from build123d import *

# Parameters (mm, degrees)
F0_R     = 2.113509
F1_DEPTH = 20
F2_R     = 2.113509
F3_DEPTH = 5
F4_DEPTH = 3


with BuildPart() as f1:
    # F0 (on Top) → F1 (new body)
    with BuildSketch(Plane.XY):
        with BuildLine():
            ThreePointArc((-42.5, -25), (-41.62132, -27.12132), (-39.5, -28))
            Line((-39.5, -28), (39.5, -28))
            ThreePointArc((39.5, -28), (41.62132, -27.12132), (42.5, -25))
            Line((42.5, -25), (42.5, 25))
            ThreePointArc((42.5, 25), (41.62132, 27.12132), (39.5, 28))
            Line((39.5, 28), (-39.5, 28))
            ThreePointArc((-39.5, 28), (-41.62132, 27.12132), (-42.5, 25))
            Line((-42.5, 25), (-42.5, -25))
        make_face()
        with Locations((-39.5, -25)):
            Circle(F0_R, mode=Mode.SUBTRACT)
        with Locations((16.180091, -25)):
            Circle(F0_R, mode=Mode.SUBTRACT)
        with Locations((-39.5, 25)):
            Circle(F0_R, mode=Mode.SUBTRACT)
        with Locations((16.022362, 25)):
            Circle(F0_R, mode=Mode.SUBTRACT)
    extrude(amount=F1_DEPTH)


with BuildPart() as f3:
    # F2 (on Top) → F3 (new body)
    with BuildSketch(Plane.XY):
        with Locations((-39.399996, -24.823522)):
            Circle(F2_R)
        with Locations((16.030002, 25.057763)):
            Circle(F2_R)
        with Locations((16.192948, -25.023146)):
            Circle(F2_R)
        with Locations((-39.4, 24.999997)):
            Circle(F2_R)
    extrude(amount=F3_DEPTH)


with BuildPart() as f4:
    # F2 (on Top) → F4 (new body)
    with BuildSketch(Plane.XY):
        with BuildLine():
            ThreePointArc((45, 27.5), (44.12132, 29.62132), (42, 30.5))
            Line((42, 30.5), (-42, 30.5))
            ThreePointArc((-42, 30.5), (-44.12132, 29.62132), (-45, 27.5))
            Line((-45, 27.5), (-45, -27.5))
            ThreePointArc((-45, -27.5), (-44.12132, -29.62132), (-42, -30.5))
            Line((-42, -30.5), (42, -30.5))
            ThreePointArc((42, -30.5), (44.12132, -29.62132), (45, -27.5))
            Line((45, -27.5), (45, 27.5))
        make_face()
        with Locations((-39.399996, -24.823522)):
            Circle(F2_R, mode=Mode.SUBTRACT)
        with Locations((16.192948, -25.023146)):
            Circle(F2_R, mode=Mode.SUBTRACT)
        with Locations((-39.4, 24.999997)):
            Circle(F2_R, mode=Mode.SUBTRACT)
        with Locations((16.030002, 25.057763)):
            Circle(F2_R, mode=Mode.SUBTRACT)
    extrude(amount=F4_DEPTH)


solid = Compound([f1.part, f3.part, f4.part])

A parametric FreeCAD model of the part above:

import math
import FreeCAD as App
import Part
import Sketcher

V = App.Vector

doc = App.newDocument("Part")
body = doc.addObject("PartDesign::Body", "Body")

# Sketch on XY plane
sketch1 = body.newObject("Sketcher::SketchObject", "Sketch")
sketch1.AttachmentSupport = (doc.getObject("XY_Plane"), [""])
sketch1.MapMode = "FlatFace"
sketch1.addGeometry([
    Part.ArcOfCircle(Part.Circle(V(-39.5, -25, 0), V(0, 0, 1), 3), math.radians(-180), math.radians(-90)),  # 0
    Part.LineSegment(V(-39.5, -28, 0), V(39.5, -28, 0)),  # 1
    Part.ArcOfCircle(Part.Circle(V(39.5, -25, 0), V(0, 0, 1), 3), math.radians(-90), math.radians(0)),  # 2
    Part.LineSegment(V(42.5, -25, 0), V(42.5, 25, 0)),  # 3
    Part.ArcOfCircle(Part.Circle(V(39.5, 25, 0), V(0, 0, 1), 3), math.radians(0), math.radians(90)),  # 4
    Part.LineSegment(V(39.5, 28, 0), V(-39.5, 28, 0)),  # 5
    Part.ArcOfCircle(Part.Circle(V(-39.5, 25, 0), V(0, 0, 1), 3), math.radians(90), math.radians(180)),  # 6
    Part.LineSegment(V(-42.5, 25, 0), V(-42.5, -25, 0)),  # 7
    Part.Circle(V(-39.5, -25, 0), V(0, 0, 1), 2.1),  # 8
    Part.Circle(V(16.2, -25, 0), V(0, 0, 1), 2.1),  # 9
    Part.Circle(V(-39.5, 25, 0), V(0, 0, 1), 2.1),  # 10
    Part.Circle(V(16, 25, 0), V(0, 0, 1), 2.1),  # 11
], False)
sketch1.addConstraint([
    Sketcher.Constraint("Tangent", 0, 2, 1, 1),
    Sketcher.Constraint("Tangent", 1, 2, 2, 1),
    Sketcher.Constraint("Tangent", 2, 2, 3, 1),
    Sketcher.Constraint("Tangent", 3, 2, 4, 1),
    Sketcher.Constraint("Tangent", 4, 2, 5, 1),
    Sketcher.Constraint("Tangent", 5, 2, 6, 1),
    Sketcher.Constraint("Tangent", 6, 2, 7, 1),
    Sketcher.Constraint("Tangent", 7, 2, 0, 1),
    Sketcher.Constraint("Horizontal", 1),
    Sketcher.Constraint("Vertical", 3),
    Sketcher.Constraint("Horizontal", 5),
    Sketcher.Constraint("Vertical", 7),
    Sketcher.Constraint("Coincident", 8, 3, 0, 3),
    Sketcher.Constraint("Coincident", 10, 3, 6, 3),
    Sketcher.Constraint("Equal", 0, 2),
    Sketcher.Constraint("Equal", 2, 4),
    Sketcher.Constraint("Equal", 4, 6),
    Sketcher.Constraint("Equal", 8, 9),
    Sketcher.Constraint("Equal", 9, 10),
    Sketcher.Constraint("Equal", 10, 11),
    Sketcher.Constraint("Symmetric", 0, 3, 4, 3, -1, 1),
    Sketcher.Constraint("Horizontal", 8, 3, 9, 3),
    Sketcher.Constraint("Horizontal", 10, 3, 11, 3),
    Sketcher.Constraint("Radius", 0, 3.000001),
    Sketcher.Constraint("DistanceX", 1, 1, 1, 2, 79.0),
    Sketcher.Constraint("DistanceY", 3, 1, 3, 2, 50.0),
    Sketcher.Constraint("Diameter", 8, 4.227018),
    Sketcher.Constraint("DistanceX", -1, 1, 9, 3, 16.180091),
    Sketcher.Constraint("DistanceX", 11, 3, 9, 3, 0.157729),
])
pad1 = body.newObject("PartDesign::Pad", "Pad")
pad1.Profile = sketch1
pad1.Length = 20
body2 = doc.addObject("PartDesign::Body", "Body001")
body2.AllowCompound = True

# Sketch on XY plane
sketch2 = body2.newObject("Sketcher::SketchObject", "Sketch001")
sketch2.AttachmentSupport = (doc.getObject("XY_Plane001"), [""])
sketch2.MapMode = "FlatFace"
sketch2.addGeometry([
    Part.Circle(V(-39.4, -24.8, 0), V(0, 0, 1), 2.1),
    Part.Circle(V(16, 25.1, 0), V(0, 0, 1), 2.1),
    Part.Circle(V(16.2, -25, 0), V(0, 0, 1), 2.1),
    Part.Circle(V(-39.4, 25, 0), V(0, 0, 1), 2.1),
], False)
sketch2.addConstraint([
    Sketcher.Constraint("Equal", 0, 1),
    Sketcher.Constraint("Equal", 1, 2),
    Sketcher.Constraint("Equal", 2, 3),
    Sketcher.Constraint("DistanceX", 3, 3, -1, 1, 39.4),
    Sketcher.Constraint("DistanceX", -1, 1, 1, 3, 16.030002),
    Sketcher.Constraint("Diameter", 0, 4.227018),
    Sketcher.Constraint("DistanceX", -1, 1, 2, 3, 16.192948),
    Sketcher.Constraint("DistanceY", 2, 3, 1, 3, 50.080909),
    Sketcher.Constraint("DistanceY", 0, 3, 3, 3, 49.823519),
    Sketcher.Constraint("DistanceX", 0, 3, -1, 1, 39.399996),
    Sketcher.Constraint("DistanceY", 0, 3, -1, 1, 24.823522),
    Sketcher.Constraint("DistanceY", -1, 1, 1, 3, 25.057763),
])
pad2 = body2.newObject("PartDesign::Pad", "Pad001")
pad2.Profile = sketch2
pad2.Length = 5
body3 = doc.addObject("PartDesign::Body", "Body002")

# Sketch on XY plane
sketch3 = body3.newObject("Sketcher::SketchObject", "Sketch002")
sketch3.AttachmentSupport = (doc.getObject("XY_Plane002"), [""])
sketch3.MapMode = "FlatFace"
sketch3.addGeometry([
    Part.ArcOfCircle(Part.Circle(V(42, 27.5, 0), V(0, 0, 1), 3), math.radians(0), math.radians(90)),  # 0
    Part.LineSegment(V(42, 30.5, 0), V(-42, 30.5, 0)),  # 1
    Part.ArcOfCircle(Part.Circle(V(-42, 27.5, 0), V(0, 0, 1), 3), math.radians(90), math.radians(180)),  # 2
    Part.LineSegment(V(-45, 27.5, 0), V(-45, -27.5, 0)),  # 3
    Part.ArcOfCircle(Part.Circle(V(-42, -27.5, 0), V(0, 0, 1), 3), math.radians(-180), math.radians(-90)),  # 4
    Part.LineSegment(V(-42, -30.5, 0), V(42, -30.5, 0)),  # 5
    Part.ArcOfCircle(Part.Circle(V(42, -27.5, 0), V(0, 0, 1), 3), math.radians(-90), math.radians(0)),  # 6
    Part.LineSegment(V(45, -27.5, 0), V(45, 27.5, 0)),  # 7
    Part.Circle(V(-39.4, -24.8, 0), V(0, 0, 1), 2.1),  # 8
    Part.Circle(V(16.2, -25, 0), V(0, 0, 1), 2.1),  # 9
    Part.Circle(V(-39.4, 25, 0), V(0, 0, 1), 2.1),  # 10
    Part.Circle(V(16, 25.1, 0), V(0, 0, 1), 2.1),  # 11
], False)
sketch3.addConstraint([
    Sketcher.Constraint("Tangent", 0, 2, 1, 1),
    Sketcher.Constraint("Tangent", 1, 2, 2, 1),
    Sketcher.Constraint("Tangent", 2, 2, 3, 1),
    Sketcher.Constraint("Tangent", 3, 2, 4, 1),
    Sketcher.Constraint("Tangent", 4, 2, 5, 1),
    Sketcher.Constraint("Tangent", 5, 2, 6, 1),
    Sketcher.Constraint("Tangent", 6, 2, 7, 1),
    Sketcher.Constraint("Tangent", 7, 2, 0, 1),
    Sketcher.Constraint("Horizontal", 1),
    Sketcher.Constraint("Vertical", 3),
    Sketcher.Constraint("Horizontal", 5),
    Sketcher.Constraint("Vertical", 7),
    Sketcher.Constraint("Equal", 0, 2),
    Sketcher.Constraint("Equal", 2, 4),
    Sketcher.Constraint("Equal", 4, 6),
    Sketcher.Constraint("Equal", 8, 9),
    Sketcher.Constraint("Equal", 9, 10),
    Sketcher.Constraint("Equal", 10, 11),
    Sketcher.Constraint("Symmetric", 0, 3, 4, 3, -1, 1),
    Sketcher.Constraint("Radius", 0, 3.000001),
    Sketcher.Constraint("DistanceX", 1, 2, 1, 1, 84.0),
    Sketcher.Constraint("DistanceY", 3, 2, 3, 1, 55.0),
    Sketcher.Constraint("DistanceX", 10, 3, -1, 1, 39.4),
    Sketcher.Constraint("DistanceY", 10, 3, 2, 3, 2.500002),
    Sketcher.Constraint("DistanceX", -1, 1, 11, 3, 16.030002),
    Sketcher.Constraint("Diameter", 8, 4.227018),
    Sketcher.Constraint("DistanceX", -1, 1, 9, 3, 16.192948),
    Sketcher.Constraint("DistanceY", 8, 3, 2, 3, 52.323521),
    Sketcher.Constraint("DistanceY", 9, 3, 11, 3, 50.080909),
    Sketcher.Constraint("DistanceY", 6, 3, 11, 3, 52.557762),
    Sketcher.Constraint("DistanceX", 8, 3, -1, 1, 39.399996),
])
pad3 = body3.newObject("PartDesign::Pad", "Pad002")
pad3.Profile = sketch3
pad3.Length = 3

doc.recompute()
